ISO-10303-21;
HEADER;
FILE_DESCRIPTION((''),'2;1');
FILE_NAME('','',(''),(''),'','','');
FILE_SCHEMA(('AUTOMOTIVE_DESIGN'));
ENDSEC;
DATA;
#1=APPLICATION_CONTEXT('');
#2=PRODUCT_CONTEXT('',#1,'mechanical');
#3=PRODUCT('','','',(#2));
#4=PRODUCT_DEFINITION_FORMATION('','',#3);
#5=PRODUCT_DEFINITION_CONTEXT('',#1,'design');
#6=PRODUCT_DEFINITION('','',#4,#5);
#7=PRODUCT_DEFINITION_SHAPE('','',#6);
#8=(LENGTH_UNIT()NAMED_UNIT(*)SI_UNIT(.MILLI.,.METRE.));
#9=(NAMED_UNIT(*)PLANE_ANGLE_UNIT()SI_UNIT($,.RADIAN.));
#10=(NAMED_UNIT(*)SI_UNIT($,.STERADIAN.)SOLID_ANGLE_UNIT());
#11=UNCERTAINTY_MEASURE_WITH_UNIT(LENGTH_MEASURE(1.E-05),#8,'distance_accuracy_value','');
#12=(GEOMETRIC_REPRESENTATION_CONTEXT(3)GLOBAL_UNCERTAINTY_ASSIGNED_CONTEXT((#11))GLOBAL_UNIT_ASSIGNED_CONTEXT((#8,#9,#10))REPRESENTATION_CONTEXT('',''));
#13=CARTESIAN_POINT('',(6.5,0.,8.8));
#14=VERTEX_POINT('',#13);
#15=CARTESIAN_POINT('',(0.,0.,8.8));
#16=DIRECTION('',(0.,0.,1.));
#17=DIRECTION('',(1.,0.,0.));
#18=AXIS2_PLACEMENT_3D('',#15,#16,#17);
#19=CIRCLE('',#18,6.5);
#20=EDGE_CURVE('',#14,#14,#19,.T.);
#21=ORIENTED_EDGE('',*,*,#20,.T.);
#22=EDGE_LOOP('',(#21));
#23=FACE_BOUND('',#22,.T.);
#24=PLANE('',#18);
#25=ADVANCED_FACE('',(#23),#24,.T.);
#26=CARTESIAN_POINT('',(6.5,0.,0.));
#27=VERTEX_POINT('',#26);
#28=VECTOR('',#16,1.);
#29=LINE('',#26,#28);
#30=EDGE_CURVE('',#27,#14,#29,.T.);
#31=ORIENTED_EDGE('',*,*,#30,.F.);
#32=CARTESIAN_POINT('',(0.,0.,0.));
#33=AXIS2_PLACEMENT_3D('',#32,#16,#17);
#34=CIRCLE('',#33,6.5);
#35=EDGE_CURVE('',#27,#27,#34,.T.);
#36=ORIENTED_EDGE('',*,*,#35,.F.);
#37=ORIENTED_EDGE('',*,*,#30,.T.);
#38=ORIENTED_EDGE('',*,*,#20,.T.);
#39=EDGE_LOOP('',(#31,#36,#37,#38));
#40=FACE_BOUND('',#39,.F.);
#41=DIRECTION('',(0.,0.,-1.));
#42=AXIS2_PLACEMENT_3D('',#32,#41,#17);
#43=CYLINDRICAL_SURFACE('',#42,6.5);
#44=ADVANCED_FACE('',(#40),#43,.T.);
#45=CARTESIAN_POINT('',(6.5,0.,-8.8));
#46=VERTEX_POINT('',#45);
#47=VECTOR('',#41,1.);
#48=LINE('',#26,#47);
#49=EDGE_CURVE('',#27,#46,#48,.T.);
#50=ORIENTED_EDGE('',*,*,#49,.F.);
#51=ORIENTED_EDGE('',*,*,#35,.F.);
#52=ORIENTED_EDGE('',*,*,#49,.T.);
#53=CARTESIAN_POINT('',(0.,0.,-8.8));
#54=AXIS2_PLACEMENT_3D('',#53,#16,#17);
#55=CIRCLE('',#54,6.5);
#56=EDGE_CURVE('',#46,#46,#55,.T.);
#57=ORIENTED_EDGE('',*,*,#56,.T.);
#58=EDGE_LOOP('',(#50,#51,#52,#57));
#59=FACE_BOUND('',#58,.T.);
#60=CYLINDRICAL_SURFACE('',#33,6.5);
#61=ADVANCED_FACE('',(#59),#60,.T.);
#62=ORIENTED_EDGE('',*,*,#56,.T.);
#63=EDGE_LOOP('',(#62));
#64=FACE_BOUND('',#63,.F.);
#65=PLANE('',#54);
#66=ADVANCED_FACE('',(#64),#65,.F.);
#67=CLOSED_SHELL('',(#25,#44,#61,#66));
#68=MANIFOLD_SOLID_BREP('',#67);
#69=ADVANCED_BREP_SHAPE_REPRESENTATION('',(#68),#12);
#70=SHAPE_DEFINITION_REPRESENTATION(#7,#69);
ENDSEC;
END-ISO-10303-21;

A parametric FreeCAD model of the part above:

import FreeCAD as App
import Part
import Sketcher
from FreeCAD import Vector
Q = App.Units.Quantity

doc = App.newDocument("Part")
params = doc.addObject("Spreadsheet::Sheet", "Params")
for row, (alias, value) in enumerate([
    ("sketch1_diameter", "13 mm"),
    ("pad1_length", "17.6 mm"),
], start=1):
    params.set(f"A{row}", alias)
    params.set(f"B{row}", "=" + value)
    params.setAlias(f"B{row}", alias)

body = doc.addObject("PartDesign::Body", "Body")

# Sketch on XY plane
sketch1 = body.newObject("Sketcher::SketchObject", "Sketch")
sketch1.AttachmentSupport = (doc.getObject("XY_Plane"), [""])
sketch1.MapMode = "FlatFace"
sketch1.addGeometry(Part.Circle(Vector(0, 0, 0), Vector(0, 0, 1), 6), False)
sketch1.addConstraint([
    Sketcher.Constraint("Coincident", 0, 3, -1, 1),
    Sketcher.Constraint("Diameter", 0, Q("13 mm")),
])
sketch1.setExpression("Constraints[1]", "Params.sketch1_diameter")
pad1 = body.newObject("PartDesign::Pad", "Pad")
pad1.Profile = sketch1
pad1.setExpression("Length", "Params.pad1_length")
pad1.Midplane = True

doc.recompute()
